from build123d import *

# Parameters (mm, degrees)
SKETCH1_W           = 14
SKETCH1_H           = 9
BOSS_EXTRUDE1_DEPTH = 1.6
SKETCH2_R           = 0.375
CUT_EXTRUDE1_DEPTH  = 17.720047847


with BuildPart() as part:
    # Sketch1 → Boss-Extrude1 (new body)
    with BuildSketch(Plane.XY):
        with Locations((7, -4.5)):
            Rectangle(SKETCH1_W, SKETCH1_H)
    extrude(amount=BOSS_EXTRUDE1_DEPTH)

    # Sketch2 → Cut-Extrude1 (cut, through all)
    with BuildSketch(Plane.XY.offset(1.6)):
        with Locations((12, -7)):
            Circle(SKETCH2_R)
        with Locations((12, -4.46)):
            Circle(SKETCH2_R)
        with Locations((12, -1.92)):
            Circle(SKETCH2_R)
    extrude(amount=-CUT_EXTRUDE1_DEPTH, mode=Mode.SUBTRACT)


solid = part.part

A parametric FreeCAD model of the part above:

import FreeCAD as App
import Part
import Sketcher

V = App.Vector
Q = App.Units.Quantity


def add_polygon(sketch, points):
    """Adds a closed chain of lines whose ends are joined by coincident constraints."""
    first, n = sketch.GeometryCount, len(points)
    for a, b in zip(points, points[1:] + points[:1]):
        sketch.addGeometry(Part.LineSegment(App.Vector(*a, 0), App.Vector(*b, 0)), False)
    for i in range(n):
        sketch.addConstraint(Sketcher.Constraint("Coincident", first + i, 2, first + (i + 1) % n, 1))

doc = App.newDocument("Part")
params = doc.addObject("Spreadsheet::Sheet", "Params")
for row, (alias, value) in enumerate([
    ("sketch1_width", "14 mm"),
    ("sketch1_height", "9 mm"),
    ("pad1_length", "1.6 mm"),
    ("sketch2_diameter", "0.75 mm"),
], start=1):
    params.set(f"A{row}", alias)
    params.set(f"B{row}", "=" + value)
    params.setAlias(f"B{row}", alias)

body = doc.addObject("PartDesign::Body", "Body")

sketch1 = body.newObject("Sketcher::SketchObject", "Sketch")
sketch1.AttachmentSupport = (doc.getObject("XY_Plane"), [""])
sketch1.MapMode = "FlatFace"
add_polygon(sketch1, [(0, 0), (0, -9), (14, -9), (14, 0)])
sketch1.addConstraint([
    Sketcher.Constraint("Vertical", 0),
    Sketcher.Constraint("Horizontal", 1),
    Sketcher.Constraint("Vertical", 2),
    Sketcher.Constraint("Horizontal", 3),
    Sketcher.Constraint("Coincident", 3, 2, -1, 1),
    Sketcher.Constraint("DistanceX", 1, 1, 1, 2, Q("14 mm")),
    Sketcher.Constraint("DistanceY", 0, 2, 0, 1, Q("9 mm")),
])
sketch1.setExpression("Constraints[9]", "Params.sketch1_width")
sketch1.setExpression("Constraints[10]", "Params.sketch1_height")
pad1 = body.newObject("PartDesign::Pad", "Pad")
pad1.Profile = sketch1
pad1.setExpression("Length", "Params.pad1_length")

sketch2 = body.newObject("Sketcher::SketchObject", "Sketch001")
sketch2.AttachmentSupport = (doc.getObject("XY_Plane"), [""])
sketch2.MapMode = "FlatFace"
sketch2.AttachmentOffset = App.Placement(V(0, 0, 1.6), App.Rotation())
sketch2.addGeometry([
    Part.Circle(V(12, -7, 0), V(0, 0, 1), 0.38),
    Part.Circle(V(12, -4.46, 0), V(0, 0, 1), 0.38),
    Part.Circle(V(12, -1.92, 0), V(0, 0, 1), 0.38),
], False)
sketch2.addConstraint([
    Sketcher.Constraint("Equal", 0, 1),
    Sketcher.Constraint("Equal", 1, 2),
    Sketcher.Constraint("Vertical", 0, 3, 1, 3),
    Sketcher.Constraint("Vertical", 1, 3, 2, 3),
    Sketcher.Constraint("Diameter", 0, Q("0.75 mm")),
    Sketcher.Constraint("DistanceX", -1, 1, 0, 3, Q("12 mm")),
    Sketcher.Constraint("DistanceY", 0, 3, -1, 1, Q("7 mm")),
    Sketcher.Constraint("DistanceY", 1, 3, -1, 1, Q("4.46 mm")),
    Sketcher.Constraint("DistanceY", 2, 3, -1, 1, Q("1.92 mm")),
])
sketch2.setExpression("Constraints[4]", "Params.sketch2_diameter")
pocket1 = body.newObject("PartDesign::Pocket", "Pocket")
pocket1.Profile = sketch2
pocket1.Type = "ThroughAll"

doc.recompute()
